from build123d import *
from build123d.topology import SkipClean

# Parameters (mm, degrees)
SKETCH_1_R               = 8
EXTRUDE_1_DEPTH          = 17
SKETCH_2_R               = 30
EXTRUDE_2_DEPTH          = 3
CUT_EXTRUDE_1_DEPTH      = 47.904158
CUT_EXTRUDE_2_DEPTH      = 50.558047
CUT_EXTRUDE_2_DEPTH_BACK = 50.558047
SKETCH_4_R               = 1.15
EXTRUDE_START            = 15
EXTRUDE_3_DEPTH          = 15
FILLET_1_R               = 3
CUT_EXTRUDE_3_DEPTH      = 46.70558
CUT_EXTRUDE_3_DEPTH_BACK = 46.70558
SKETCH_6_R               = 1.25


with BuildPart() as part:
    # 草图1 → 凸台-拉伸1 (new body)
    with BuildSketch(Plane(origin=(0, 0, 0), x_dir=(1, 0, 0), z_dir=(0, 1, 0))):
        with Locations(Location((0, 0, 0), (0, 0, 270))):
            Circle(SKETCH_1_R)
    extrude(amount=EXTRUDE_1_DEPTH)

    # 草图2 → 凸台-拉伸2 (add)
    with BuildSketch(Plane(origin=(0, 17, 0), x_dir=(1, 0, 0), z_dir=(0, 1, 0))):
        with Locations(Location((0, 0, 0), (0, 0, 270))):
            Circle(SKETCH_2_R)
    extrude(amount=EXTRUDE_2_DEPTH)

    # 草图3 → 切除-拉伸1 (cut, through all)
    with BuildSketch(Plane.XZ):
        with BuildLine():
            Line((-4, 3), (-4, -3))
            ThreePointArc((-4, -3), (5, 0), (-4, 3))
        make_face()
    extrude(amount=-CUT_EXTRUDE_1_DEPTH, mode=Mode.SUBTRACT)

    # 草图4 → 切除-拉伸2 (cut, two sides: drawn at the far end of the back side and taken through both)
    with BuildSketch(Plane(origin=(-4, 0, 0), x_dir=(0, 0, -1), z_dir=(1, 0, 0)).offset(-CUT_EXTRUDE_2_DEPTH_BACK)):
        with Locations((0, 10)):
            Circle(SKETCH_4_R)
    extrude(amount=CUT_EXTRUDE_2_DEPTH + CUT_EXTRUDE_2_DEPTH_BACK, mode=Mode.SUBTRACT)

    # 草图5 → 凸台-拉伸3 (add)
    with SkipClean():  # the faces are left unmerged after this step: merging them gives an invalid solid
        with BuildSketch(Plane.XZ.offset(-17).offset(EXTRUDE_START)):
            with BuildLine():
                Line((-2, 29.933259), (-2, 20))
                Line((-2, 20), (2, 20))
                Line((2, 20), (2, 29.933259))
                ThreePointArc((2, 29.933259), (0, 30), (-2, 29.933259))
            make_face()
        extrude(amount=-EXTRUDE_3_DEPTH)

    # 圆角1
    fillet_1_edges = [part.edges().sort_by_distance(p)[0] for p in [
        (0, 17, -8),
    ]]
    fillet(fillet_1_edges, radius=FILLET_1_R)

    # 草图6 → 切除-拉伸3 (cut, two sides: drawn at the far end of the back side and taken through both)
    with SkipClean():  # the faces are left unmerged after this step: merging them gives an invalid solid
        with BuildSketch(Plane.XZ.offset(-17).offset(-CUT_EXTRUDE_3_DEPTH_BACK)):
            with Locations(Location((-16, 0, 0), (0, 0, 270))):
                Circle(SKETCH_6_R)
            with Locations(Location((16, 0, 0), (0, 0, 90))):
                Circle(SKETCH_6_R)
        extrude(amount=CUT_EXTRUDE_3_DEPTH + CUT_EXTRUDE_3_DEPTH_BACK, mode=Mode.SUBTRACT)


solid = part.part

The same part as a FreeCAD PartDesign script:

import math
import FreeCAD as App
import Part
import Sketcher


def edges_at(feature, points):
    """Names of the edges that pass closest to the given points."""
    edges = feature.Shape.Edges
    near = lambda p: min(range(len(edges)), key=lambda i: edges[i].distToShape(Part.Vertex(*p))[0])
    return sorted({f"Edge{near(p) + 1}" for p in points})

doc = App.newDocument("Part")
body = doc.addObject("PartDesign::Body", "Body")

# Sketch on XZ plane
sketch1 = doc.addObject("Sketcher::SketchObject", "Sketch")
body.addObject(sketch1)
sketch1.AttachmentSupport = (doc.XZ_Plane, [""])
sketch1.MapMode = "FlatFace"
sketch1.addGeometry(Part.Circle(App.Vector(0, 0, 0), App.Vector(0, 0, 1), 8), False)
sketch1.addConstraint(Sketcher.Constraint("Coincident", 0, 3, -1, 1))
sketch1.addConstraint(Sketcher.Constraint("Diameter", 0, 16.0))
pad1 = doc.addObject("PartDesign::Pad", "Pad")
body.addObject(pad1)
pad1.Profile = sketch1
pad1.Length = 17
pad1.Reversed = True

# Sketch on XZ plane
sketch2 = doc.addObject("Sketcher::SketchObject", "Sketch001")
body.addObject(sketch2)
sketch2.AttachmentSupport = (doc.XZ_Plane, [""])
sketch2.MapMode = "FlatFace"
sketch2.AttachmentOffset = App.Placement(App.Vector(0, 0, -17), App.Rotation())
sketch2.addGeometry(Part.Circle(App.Vector(0, 0, 0), App.Vector(0, 0, 1), 30), False)
sketch2.addConstraint(Sketcher.Constraint("Coincident", 0, 3, -1, 1))
sketch2.addConstraint(Sketcher.Constraint("Diameter", 0, 60.0))
pad2 = doc.addObject("PartDesign::Pad", "Pad001")
body.addObject(pad2)
pad2.Profile = sketch2
pad2.Length = 3
pad2.Reversed = True

# Sketch on XZ plane
sketch3 = doc.addObject("Sketcher::SketchObject", "Sketch002")
body.addObject(sketch3)
sketch3.AttachmentSupport = (doc.XZ_Plane, [""])
sketch3.MapMode = "FlatFace"
sketch3.addGeometry(Part.LineSegment(App.Vector(-4, 3, 0), App.Vector(-4, -3, 0)), False)
sketch3.addGeometry(Part.ArcOfCircle(Part.Circle(App.Vector(0, 0, 0), App.Vector(0, 0, 1), 5), math.radians(-143.130102), math.radians(143.130102)), False)
sketch3.addConstraint(Sketcher.Constraint("Coincident", 0, 1, 1, 2))
sketch3.addConstraint(Sketcher.Constraint("Coincident", 1, 1, 0, 2))
sketch3.addConstraint(Sketcher.Constraint("Vertical", 0))
sketch3.addConstraint(Sketcher.Constraint("Coincident", 1, 3, -1, 1))
sketch3.addConstraint(Sketcher.Constraint("Radius", 1, 5.0))
sketch3.addConstraint(Sketcher.Constraint("DistanceY", 0, 2, 0, 1, 6.0))
pocket1 = doc.addObject("PartDesign::Pocket", "Pocket")
body.addObject(pocket1)
pocket1.Profile = sketch3
pocket1.Type = "ThroughAll"

# Sketch on YZ plane
sketch4 = doc.addObject("Sketcher::SketchObject", "Sketch003")
body.addObject(sketch4)
sketch4.AttachmentSupport = (doc.YZ_Plane, [""])
sketch4.MapMode = "FlatFace"
sketch4.AttachmentOffset = App.Placement(App.Vector(0, 0, -4), App.Rotation())
sketch4.addGeometry(Part.Circle(App.Vector(10, 0, 0), App.Vector(0, 0, 1), 1.15), False)
sketch4.addConstraint(Sketcher.Constraint("PointOnObject", 0, 3, -1))
sketch4.addConstraint(Sketcher.Constraint("Diameter", 0, 2.3))
sketch4.addConstraint(Sketcher.Constraint("DistanceX", -1, 1, 0, 3, 10.0))
pocket2 = doc.addObject("PartDesign::Pocket", "Pocket001")
body.addObject(pocket2)
pocket2.Profile = sketch4
pocket2.Type = "ThroughAll"
pocket2.Midplane = True

# Sketch on XZ plane
sketch5 = doc.addObject("Sketcher::SketchObject", "Sketch004")
body.addObject(sketch5)
sketch5.AttachmentSupport = (doc.XZ_Plane, [""])
sketch5.MapMode = "FlatFace"
sketch5.AttachmentOffset = App.Placement(App.Vector(0, 0, -2), App.Rotation())
sketch5.addGeometry(Part.LineSegment(App.Vector(-2, 29.933259, 0), App.Vector(-2, 20, 0)), False)
sketch5.addGeometry(Part.LineSegment(App.Vector(-2, 20, 0), App.Vector(2, 20, 0)), False)
sketch5.addGeometry(Part.LineSegment(App.Vector(2, 20, 0), App.Vector(2, 29.933259, 0)), False)
sketch5.addGeometry(Part.ArcOfCircle(Part.Circle(App.Vector(0, 0.000042, 0), App.Vector(0, 0, 1), 29.999958), math.radians(86.177441), math.radians(93.822559)), False)
sketch5.addConstraint(Sketcher.Constraint("Coincident", 0, 2, 1, 1))
sketch5.addConstraint(Sketcher.Constraint("Coincident", 1, 2, 2, 1))
sketch5.addConstraint(Sketcher.Constraint("Coincident", 2, 2, 3, 1))
sketch5.addConstraint(Sketcher.Constraint("Coincident", 3, 2, 0, 1))
sketch5.addConstraint(Sketcher.Constraint("Vertical", 0))
sketch5.addConstraint(Sketcher.Constraint("Horizontal", 1))
sketch5.addConstraint(Sketcher.Constraint("Vertical", 2))
sketch5.addConstraint(Sketcher.Constraint("Symmetric", 2, 2, 3, 2, -2))
sketch5.addConstraint(Sketcher.Constraint("DistanceX", 1, 1, 1, 2, 4.0))
sketch5.addConstraint(Sketcher.Constraint("DistanceY", -1, 1, 0, 2, 20.0))
sketch5.addConstraint(Sketcher.Constraint("Radius", 3, 29.999958))
sketch5.addConstraint(Sketcher.Constraint("DistanceY", 0, 2, 0, 1, 9.933259))
pad3 = doc.addObject("PartDesign::Pad", "Pad002")
body.addObject(pad3)
pad3.Profile = sketch5
pad3.Length = 15
pad3.Reversed = True
doc.recompute()

fillet = doc.addObject("PartDesign::Fillet", "Fillet")
body.addObject(fillet)
fillet.Base = (pad3, edges_at(pad3, [(0, 17, -8)]))
fillet.Radius = 3

# Sketch on XZ plane
sketch6 = doc.addObject("Sketcher::SketchObject", "Sketch005")
body.addObject(sketch6)
sketch6.AttachmentSupport = (doc.XZ_Plane, [""])
sketch6.MapMode = "FlatFace"
sketch6.AttachmentOffset = App.Placement(App.Vector(0, 0, -17), App.Rotation())
sketch6.addGeometry(Part.Circle(App.Vector(-16, 0, 0), App.Vector(0, 0, 1), 1.25), False)
sketch6.addGeometry(Part.Circle(App.Vector(16, 0, 0), App.Vector(0, 0, 1), 1.25), False)
sketch6.addConstraint(Sketcher.Constraint("Equal", 0, 1))
sketch6.addConstraint(Sketcher.Constraint("Symmetric", 0, 3, 1, 3, -1, 1))
sketch6.addConstraint(Sketcher.Constraint("PointOnObject", 0, 3, -1))
sketch6.addConstraint(Sketcher.Constraint("Diameter", 0, 2.5))
sketch6.addConstraint(Sketcher.Constraint("DistanceX", 0, 3, -1, 1, 16.0))
pocket3 = doc.addObject("PartDesign::Pocket", "Pocket002")
body.addObject(pocket3)
pocket3.Profile = sketch6
pocket3.Type = "ThroughAll"
pocket3.Midplane = True

doc.recompute()
